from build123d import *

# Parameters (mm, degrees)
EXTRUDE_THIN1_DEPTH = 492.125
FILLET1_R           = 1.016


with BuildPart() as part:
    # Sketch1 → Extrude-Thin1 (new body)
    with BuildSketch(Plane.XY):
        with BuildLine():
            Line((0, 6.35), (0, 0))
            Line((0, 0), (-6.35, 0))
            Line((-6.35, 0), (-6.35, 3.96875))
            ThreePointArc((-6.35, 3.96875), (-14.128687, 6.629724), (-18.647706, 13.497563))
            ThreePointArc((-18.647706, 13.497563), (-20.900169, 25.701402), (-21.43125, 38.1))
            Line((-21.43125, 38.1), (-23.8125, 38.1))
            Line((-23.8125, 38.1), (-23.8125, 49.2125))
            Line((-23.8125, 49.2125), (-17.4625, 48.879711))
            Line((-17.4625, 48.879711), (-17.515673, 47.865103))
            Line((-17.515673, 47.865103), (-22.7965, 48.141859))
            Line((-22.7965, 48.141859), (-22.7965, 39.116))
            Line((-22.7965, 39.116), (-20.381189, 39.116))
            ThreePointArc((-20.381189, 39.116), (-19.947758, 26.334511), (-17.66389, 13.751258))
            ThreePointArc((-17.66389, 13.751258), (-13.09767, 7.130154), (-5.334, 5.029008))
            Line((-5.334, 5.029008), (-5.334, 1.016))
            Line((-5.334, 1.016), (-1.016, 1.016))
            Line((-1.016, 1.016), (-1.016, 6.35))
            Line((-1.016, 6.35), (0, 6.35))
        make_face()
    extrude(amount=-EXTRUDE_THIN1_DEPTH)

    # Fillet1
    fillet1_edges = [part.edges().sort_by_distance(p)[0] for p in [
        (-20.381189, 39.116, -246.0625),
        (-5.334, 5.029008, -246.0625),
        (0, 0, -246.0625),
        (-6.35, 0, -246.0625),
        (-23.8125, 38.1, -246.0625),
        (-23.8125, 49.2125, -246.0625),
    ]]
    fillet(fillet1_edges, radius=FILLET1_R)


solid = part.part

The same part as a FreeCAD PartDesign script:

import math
import FreeCAD as App
import Part
import Sketcher

V = App.Vector
Q = App.Units.Quantity


def edges_at(feature, points):
    """Names of the edges that pass closest to the given points."""
    edges = feature.Shape.Edges
    near = lambda p: min(range(len(edges)), key=lambda i: edges[i].distToShape(Part.Vertex(*p))[0])
    return sorted({f"Edge{near(p) + 1}" for p in points})

doc = App.newDocument("Part")
params = doc.addObject("Spreadsheet::Sheet", "Params")
for row, (alias, value) in enumerate([
    ("sketch1_radius", "0.4999999 in"),
    ("sketch1_radius2", "0.46 in"),
    ("sketch1_width", "0.04 in"),
    ("sketch1_width2", "0.17 in"),
    ("sketch1_width3", "0.25 in"),
    ("pad1_length", "19.375 in"),
    ("fillet_radius", "0.04 in"),
], start=1):
    params.set(f"A{row}", alias)
    params.set(f"B{row}", "=" + value)
    params.setAlias(f"B{row}", alias)

body = doc.addObject("PartDesign::Body", "Body")

# Sketch on XY plane
sketch1 = body.newObject("Sketcher::SketchObject", "Sketch")
sketch1.AttachmentSupport = (doc.getObject("XY_Plane"), [""])
sketch1.MapMode = "FlatFace"
sketch1.addGeometry(Part.LineSegment(V(0, 0, 0), V(0, 6.35, 0)), False)
sketch1.addGeometry(Part.LineSegment(V(0, 6.35, 0), V(-1.016, 6.35, 0)), False)
sketch1.addGeometry(Part.LineSegment(V(-1.016, 6.35, 0), V(-1.016, 1.016, 0)), False)
sketch1.addGeometry(Part.LineSegment(V(-1.016, 1.016, 0), V(-5.334, 1.016, 0)), False)
sketch1.addGeometry(Part.LineSegment(V(-5.334, 1.016, 0), V(-5.334, 5.029008, 0)), False)
sketch1.addGeometry(Part.ArcOfCircle(Part.Circle(V(-6.350001, 16.668749, 0), V(0, 0, 1), 11.683999), math.radians(-165.540256), math.radians(-85.011452)), False)
sketch1.addGeometry(Part.ArcOfCircle(Part.Circle(V(67.436227, 35.695869, 0), V(0, 0, 1), 87.88399), math.radians(177.769689), math.radians(194.459746)), False)
sketch1.addGeometry(Part.LineSegment(V(-20.381189, 39.116, 0), V(-22.7965, 39.116, 0)), False)
sketch1.addGeometry(Part.LineSegment(V(-22.7965, 39.116, 0), V(-22.7965, 48.141859, 0)), False)
sketch1.addGeometry(Part.LineSegment(V(-22.7965, 48.141859, 0), V(-17.515673, 47.865103, 0)), False)
sketch1.addGeometry(Part.LineSegment(V(-17.515673, 47.865103, 0), V(-17.4625, 48.879711, 0)), False)
sketch1.addGeometry(Part.LineSegment(V(-17.4625, 48.879711, 0), V(-23.8125, 49.2125, 0)), False)
sketch1.addGeometry(Part.LineSegment(V(-23.8125, 49.2125, 0), V(-23.8125, 38.1, 0)), False)
sketch1.addGeometry(Part.LineSegment(V(-23.8125, 38.1, 0), V(-21.43125, 38.1, 0)), False)
sketch1.addGeometry(Part.ArcOfCircle(Part.Circle(V(67.436275, 35.695874, 0), V(0, 0, 1), 88.900038), math.radians(178.45036), math.radians(194.459742)), False)
sketch1.addGeometry(Part.ArcOfCircle(Part.Circle(V(-6.350002, 16.668748, 0), V(0, 0, 1), 12.699998), math.radians(-165.540261), math.radians(-89.999992)), False)
sketch1.addGeometry(Part.LineSegment(V(-6.35, 3.96875, 0), V(-6.35, 0, 0)), False)
sketch1.addGeometry(Part.LineSegment(V(-6.35, 0, 0), V(0, 0, 0)), False)
sketch1.addConstraint(Sketcher.Constraint("Coincident", 0, 2, 1, 1))
sketch1.addConstraint(Sketcher.Constraint("Coincident", 1, 2, 2, 1))
sketch1.addConstraint(Sketcher.Constraint("Coincident", 2, 2, 3, 1))
sketch1.addConstraint(Sketcher.Constraint("Coincident", 3, 2, 4, 1))
sketch1.addConstraint(Sketcher.Constraint("Coincident", 4, 2, 5, 2))
sketch1.addConstraint(Sketcher.Constraint("Tangent", 5, 1, 6, 2))
sketch1.addConstraint(Sketcher.Constraint("Coincident", 6, 1, 7, 1))
sketch1.addConstraint(Sketcher.Constraint("Coincident", 7, 2, 8, 1))
sketch1.addConstraint(Sketcher.Constraint("Coincident", 8, 2, 9, 1))
sketch1.addConstraint(Sketcher.Constraint("Coincident", 9, 2, 10, 1))
sketch1.addConstraint(Sketcher.Constraint("Coincident", 10, 2, 11, 1))
sketch1.addConstraint(Sketcher.Constraint("Coincident", 11, 2, 12, 1))
sketch1.addConstraint(Sketcher.Constraint("Coincident", 12, 2, 13, 1))
sketch1.addConstraint(Sketcher.Constraint("Coincident", 13, 2, 14, 1))
sketch1.addConstraint(Sketcher.Constraint("Tangent", 14, 2, 15, 1))
sketch1.addConstraint(Sketcher.Constraint("Coincident", 15, 2, 16, 1))
sketch1.addConstraint(Sketcher.Constraint("Coincident", 16, 2, 17, 1))
sketch1.addConstraint(Sketcher.Constraint("Coincident", 17, 2, 0, 1))
sketch1.addConstraint(Sketcher.Constraint("Vertical", 0))
sketch1.addConstraint(Sketcher.Constraint("Horizontal", 1))
sketch1.addConstraint(Sketcher.Constraint("Vertical", 2))
sketch1.addConstraint(Sketcher.Constraint("Horizontal", 3))
sketch1.addConstraint(Sketcher.Constraint("Vertical", 4))
sketch1.addConstraint(Sketcher.Constraint("Horizontal", 7))
sketch1.addConstraint(Sketcher.Constraint("Vertical", 8))
sketch1.addConstraint(Sketcher.Constraint("Vertical", 12))
sketch1.addConstraint(Sketcher.Constraint("Horizontal", 13))
sketch1.addConstraint(Sketcher.Constraint("Vertical", 16))
sketch1.addConstraint(Sketcher.Constraint("Horizontal", 17))
sketch1.addConstraint(Sketcher.Constraint("Coincident", 17, 2, -1, 1))
sketch1.addConstraint(Sketcher.Constraint("Coincident", 15, 3, 5, 3))
sketch1.addConstraint(Sketcher.Constraint("Perpendicular", 9, 10))
sketch1.addConstraint(Sketcher.Constraint("Perpendicular", 10, 11))
sketch1.addConstraint(Sketcher.Constraint("Vertical", 5, 3, 15, 2))
sketch1.addConstraint(Sketcher.Constraint("Equal", 17, 0))
sketch1.addConstraint(Sketcher.Constraint("Radius", 15, Q("0.4999999 in")))
sketch1.addConstraint(Sketcher.Constraint("Radius", 5, Q("0.46 in")))
sketch1.addConstraint(Sketcher.Constraint("Angle", 9, Q("-2.999996 deg")))
sketch1.addConstraint(Sketcher.Constraint("DistanceX", 1, 2, 1, 1, Q("0.04 in")))
sketch1.addConstraint(Sketcher.Constraint("DistanceX", 3, 2, 3, 1, Q("0.17 in")))
sketch1.addConstraint(Sketcher.Constraint("DistanceX", 17, 1, 17, 2, Q("0.25 in")))
sketch1.addConstraint(Sketcher.Constraint("DistanceY", 2, 2, 2, 1, Q("0.21 in")))
sketch1.addConstraint(Sketcher.Constraint("DistanceY", -1, 1, 12, 2, Q("1.5 in")))
sketch1.addConstraint(Sketcher.Constraint("Distance", 10, Q("0.04 in")))
sketch1.addConstraint(Sketcher.Constraint("DistanceX", 13, 1, 13, 2, Q("0.09375 in")))
sketch1.addConstraint(Sketcher.Constraint("DistanceY", 12, 2, 12, 1, Q("0.4375 in")))
sketch1.addConstraint(Sketcher.Constraint("DistanceY", 16, 2, 16, 1, Q("0.15625 in")))
sketch1.addConstraint(Sketcher.Constraint("DistanceY", -1, 1, 6, 1, Q("1.54 in")))
sketch1.addConstraint(Sketcher.Constraint("DistanceX", 8, 2, 10, 2, Q("0.21 in")))
sketch1.addConstraint(Sketcher.Constraint("DistanceX", 11, 2, 8, 2, Q("0.04 in")))
sketch1.addConstraint(Sketcher.Constraint("DistanceX", 10, 2, -1, 1, Q("0.6875 in")))
sketch1.addConstraint(Sketcher.Constraint("Radius", 6, 87.88399))
sketch1.addConstraint(Sketcher.Constraint("Radius", 14, 88.900038))
sketch1.addConstraint(Sketcher.Constraint("DistanceX", 7, 2, 7, 1, 2.415311))
sketch1.setExpression("Constraints[35]", "Params.sketch1_radius")
sketch1.setExpression("Constraints[36]", "Params.sketch1_radius2")
sketch1.setExpression("Constraints[38]", "Params.sketch1_width")
sketch1.setExpression("Constraints[39]", "Params.sketch1_width2")
sketch1.setExpression("Constraints[40]", "Params.sketch1_width3")
pad1 = body.newObject("PartDesign::Pad", "Pad")
pad1.Profile = sketch1
pad1.setExpression("Length", "Params.pad1_length")
pad1.Reversed = True
doc.recompute()

fillet = body.newObject("PartDesign::Fillet", "Fillet")
fillet.Base = (pad1, edges_at(pad1, [
    (-20.381, 39.116, -246.062),
    (-5.334, 5.029, -246.062),
    (0, 0, -246.062),
    (-6.35, 0, -246.062),
    (-23.812, 38.1, -246.062),
    (-23.812, 49.212, -246.062),
]))
fillet.setExpression("Radius", "Params.fillet_radius")

doc.recompute()
